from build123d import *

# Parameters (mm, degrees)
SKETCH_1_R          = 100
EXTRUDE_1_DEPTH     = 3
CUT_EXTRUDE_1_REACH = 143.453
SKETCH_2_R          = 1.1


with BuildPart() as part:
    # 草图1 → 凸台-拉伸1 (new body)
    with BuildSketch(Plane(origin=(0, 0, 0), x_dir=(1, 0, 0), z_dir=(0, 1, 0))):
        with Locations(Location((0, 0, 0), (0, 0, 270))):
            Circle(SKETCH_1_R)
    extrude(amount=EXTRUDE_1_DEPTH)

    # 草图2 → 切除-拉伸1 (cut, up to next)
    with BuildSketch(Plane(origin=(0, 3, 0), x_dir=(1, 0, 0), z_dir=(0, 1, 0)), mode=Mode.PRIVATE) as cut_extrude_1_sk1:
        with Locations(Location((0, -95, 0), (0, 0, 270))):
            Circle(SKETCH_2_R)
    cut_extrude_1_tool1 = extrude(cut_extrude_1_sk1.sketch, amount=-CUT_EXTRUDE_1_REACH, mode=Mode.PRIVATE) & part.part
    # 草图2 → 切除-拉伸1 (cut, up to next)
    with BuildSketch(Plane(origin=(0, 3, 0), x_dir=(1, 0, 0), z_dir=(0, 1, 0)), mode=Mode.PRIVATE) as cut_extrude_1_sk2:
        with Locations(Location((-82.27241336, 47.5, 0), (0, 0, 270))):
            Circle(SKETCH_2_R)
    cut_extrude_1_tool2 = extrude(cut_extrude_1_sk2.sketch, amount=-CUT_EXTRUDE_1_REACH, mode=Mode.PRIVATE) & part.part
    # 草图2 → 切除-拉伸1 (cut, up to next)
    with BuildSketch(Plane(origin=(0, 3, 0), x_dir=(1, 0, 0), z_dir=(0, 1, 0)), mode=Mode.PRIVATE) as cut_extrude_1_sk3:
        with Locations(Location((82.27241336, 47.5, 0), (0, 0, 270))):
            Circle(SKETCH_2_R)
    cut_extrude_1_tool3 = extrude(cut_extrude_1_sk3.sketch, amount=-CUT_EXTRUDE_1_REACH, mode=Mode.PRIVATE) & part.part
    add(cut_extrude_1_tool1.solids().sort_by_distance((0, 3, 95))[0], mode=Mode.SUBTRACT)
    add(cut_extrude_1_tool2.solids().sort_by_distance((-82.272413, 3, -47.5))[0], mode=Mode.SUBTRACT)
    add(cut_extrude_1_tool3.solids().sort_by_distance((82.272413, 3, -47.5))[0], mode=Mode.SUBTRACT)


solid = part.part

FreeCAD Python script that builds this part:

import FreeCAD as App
import Part
import Sketcher
Q = App.Units.Quantity

doc = App.newDocument("Part")
params = doc.addObject("Spreadsheet::Sheet", "Params")
for row, (alias, value) in enumerate([
    ("sketch1_diameter", "200 mm"),
    ("pad1_length", "3 mm"),
    ("sketch2_diameter", "2.2 mm"),
    ("sketch3_diameter", "2.2 mm"),
    ("sketch4_diameter", "2.2 mm"),
], start=1):
    params.set(f"A{row}", alias)
    params.set(f"B{row}", "=" + value)
    params.setAlias(f"B{row}", alias)

body = doc.addObject("PartDesign::Body", "Body")

sketch1 = doc.addObject("Sketcher::SketchObject", "Sketch")
body.addObject(sketch1)
sketch1.AttachmentSupport = (doc.XZ_Plane, [""])
sketch1.MapMode = "FlatFace"
sketch1.addGeometry(Part.Circle(App.Vector(0, 0, 0), App.Vector(0, 0, 1), 100), False)
sketch1.addConstraint([
    Sketcher.Constraint("Coincident", 0, 3, -1, 1),
    Sketcher.Constraint("Diameter", 0, Q("200 mm")),
])
sketch1.setExpression("Constraints[1]", "Params.sketch1_diameter")
pad1 = doc.addObject("PartDesign::Pad", "Pad")
body.addObject(pad1)
pad1.Profile = sketch1
pad1.setExpression("Length", "Params.pad1_length")
pad1.Reversed = True

sketch2 = doc.addObject("Sketcher::SketchObject", "Sketch001")
body.addObject(sketch2)
sketch2.AttachmentSupport = (doc.XZ_Plane, [""])
sketch2.MapMode = "FlatFace"
sketch2.AttachmentOffset = App.Placement(App.Vector(0, 0, -3), App.Rotation())
sketch2.addGeometry(Part.Circle(App.Vector(0, 95, 0), App.Vector(0, 0, 1), 1.1), False)
sketch2.addConstraint([
    Sketcher.Constraint("PointOnObject", 0, 3, -2),
    Sketcher.Constraint("Diameter", 0, Q("2.2 mm")),
    Sketcher.Constraint("DistanceY", -1, 1, 0, 3, Q("95 mm")),
])
sketch2.setExpression("Constraints[1]", "Params.sketch2_diameter")
pocket1 = doc.addObject("PartDesign::Pocket", "Pocket")
body.addObject(pocket1)
pocket1.Profile = sketch2
pocket1.Type = "UpToFirst"
pocket1.Reversed = True

sketch3 = doc.addObject("Sketcher::SketchObject", "Sketch002")
body.addObject(sketch3)
sketch3.AttachmentSupport = (doc.XZ_Plane, [""])
sketch3.MapMode = "FlatFace"
sketch3.AttachmentOffset = App.Placement(App.Vector(0, 0, -3), App.Rotation())
sketch3.addGeometry(Part.Circle(App.Vector(-82.3, -47.5, 0), App.Vector(0, 0, 1), 1.1), False)
sketch3.addConstraint([
    Sketcher.Constraint("Diameter", 0, Q("2.2 mm")),
    Sketcher.Constraint("DistanceY", 0, 3, -1, 1, Q("47.5 mm")),
    Sketcher.Constraint("DistanceX", 0, 3, -1, 1, Q("82.272413 mm")),
])
sketch3.setExpression("Constraints[0]", "Params.sketch3_diameter")
pocket2 = doc.addObject("PartDesign::Pocket", "Pocket001")
body.addObject(pocket2)
pocket2.Profile = sketch3
pocket2.Type = "UpToFirst"
pocket2.Reversed = True

sketch4 = doc.addObject("Sketcher::SketchObject", "Sketch003")
body.addObject(sketch4)
sketch4.AttachmentSupport = (doc.XZ_Plane, [""])
sketch4.MapMode = "FlatFace"
sketch4.AttachmentOffset = App.Placement(App.Vector(0, 0, -3), App.Rotation())
sketch4.addGeometry(Part.Circle(App.Vector(82.3, -47.5, 0), App.Vector(0, 0, 1), 1.1), False)
sketch4.addConstraint([
    Sketcher.Constraint("Diameter", 0, Q("2.2 mm")),
    Sketcher.Constraint("DistanceY", 0, 3, -1, 1, Q("47.5 mm")),
    Sketcher.Constraint("DistanceX", -1, 1, 0, 3, Q("82.272413 mm")),
])
sketch4.setExpression("Constraints[0]", "Params.sketch4_diameter")
pocket3 = doc.addObject("PartDesign::Pocket", "Pocket002")
body.addObject(pocket3)
pocket3.Profile = sketch4
pocket3.Type = "UpToFirst"
pocket3.Reversed = True

doc.recompute()
